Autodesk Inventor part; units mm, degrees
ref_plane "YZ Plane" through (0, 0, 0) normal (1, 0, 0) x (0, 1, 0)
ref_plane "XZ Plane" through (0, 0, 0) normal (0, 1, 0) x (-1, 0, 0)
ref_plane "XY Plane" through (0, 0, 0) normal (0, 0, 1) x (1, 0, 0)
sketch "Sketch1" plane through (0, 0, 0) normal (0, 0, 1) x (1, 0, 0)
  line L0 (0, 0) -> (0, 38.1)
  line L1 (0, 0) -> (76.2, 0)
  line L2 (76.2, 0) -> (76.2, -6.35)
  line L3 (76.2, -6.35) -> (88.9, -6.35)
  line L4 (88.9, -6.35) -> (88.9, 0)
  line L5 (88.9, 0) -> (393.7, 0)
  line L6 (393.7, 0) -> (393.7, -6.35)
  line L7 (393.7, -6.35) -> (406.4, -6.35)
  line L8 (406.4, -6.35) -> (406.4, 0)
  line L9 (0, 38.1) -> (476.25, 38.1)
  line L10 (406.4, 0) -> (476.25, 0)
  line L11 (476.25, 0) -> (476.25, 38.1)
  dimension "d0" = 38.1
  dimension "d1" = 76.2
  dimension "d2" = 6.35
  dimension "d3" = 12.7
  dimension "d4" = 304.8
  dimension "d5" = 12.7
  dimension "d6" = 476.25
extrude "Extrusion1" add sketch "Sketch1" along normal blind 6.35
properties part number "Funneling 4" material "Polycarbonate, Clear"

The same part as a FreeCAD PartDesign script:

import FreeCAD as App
import Part
import Sketcher
Q = App.Units.Quantity

doc = App.newDocument("Part")
params = doc.addObject("Spreadsheet::Sheet", "Params")
for row, (alias, value) in enumerate([
    ("sketch1_width", "3 in"),
    ("sketch1_width2", "12 in"),
    ("sketch1_width3", "0.5 in"),
    ("sketch1_height", "1.5 in"),
    ("sketch1_width4", "18.75 in"),
    ("pad1_length", "0.25 in"),
], start=1):
    params.set(f"A{row}", alias)
    params.set(f"B{row}", "=" + value)
    params.setAlias(f"B{row}", alias)

body = doc.addObject("PartDesign::Body", "Body")

# Sketch on XY plane
sketch1 = doc.addObject("Sketcher::SketchObject", "Sketch")
body.addObject(sketch1)
sketch1.AttachmentSupport = (doc.XY_Plane, [""])
sketch1.MapMode = "FlatFace"
sketch1.addGeometry(Part.LineSegment(App.Vector(0, 38.1, 0), App.Vector(0, 0, 0)), False)
sketch1.addGeometry(Part.LineSegment(App.Vector(0, 0, 0), App.Vector(76.2, 0, 0)), False)
sketch1.addGeometry(Part.LineSegment(App.Vector(76.2, 0, 0), App.Vector(76.2, -6.35, 0)), False)
sketch1.addGeometry(Part.LineSegment(App.Vector(76.2, -6.35, 0), App.Vector(88.9, -6.35, 0)), False)
sketch1.addGeometry(Part.LineSegment(App.Vector(88.9, -6.35, 0), App.Vector(88.9, 0, 0)), False)
sketch1.addGeometry(Part.LineSegment(App.Vector(88.9, 0, 0), App.Vector(393.7, 0, 0)), False)
sketch1.addGeometry(Part.LineSegment(App.Vector(393.7, 0, 0), App.Vector(393.7, -6.35, 0)), False)
sketch1.addGeometry(Part.LineSegment(App.Vector(393.7, -6.35, 0), App.Vector(406.4, -6.35, 0)), False)
sketch1.addGeometry(Part.LineSegment(App.Vector(406.4, -6.35, 0), App.Vector(406.4, 0, 0)), False)
sketch1.addGeometry(Part.LineSegment(App.Vector(406.4, 0, 0), App.Vector(476.25, 0, 0)), False)
sketch1.addGeometry(Part.LineSegment(App.Vector(476.25, 0, 0), App.Vector(476.25, 38.1, 0)), False)
sketch1.addGeometry(Part.LineSegment(App.Vector(476.25, 38.1, 0), App.Vector(0, 38.1, 0)), False)
sketch1.addConstraint(Sketcher.Constraint("Coincident", 0, 2, 1, 1))
sketch1.addConstraint(Sketcher.Constraint("Coincident", 1, 2, 2, 1))
sketch1.addConstraint(Sketcher.Constraint("Coincident", 2, 2, 3, 1))
sketch1.addConstraint(Sketcher.Constraint("Coincident", 3, 2, 4, 1))
sketch1.addConstraint(Sketcher.Constraint("Coincident", 4, 2, 5, 1))
sketch1.addConstraint(Sketcher.Constraint("Coincident", 5, 2, 6, 1))
sketch1.addConstraint(Sketcher.Constraint("Coincident", 6, 2, 7, 1))
sketch1.addConstraint(Sketcher.Constraint("Coincident", 7, 2, 8, 1))
sketch1.addConstraint(Sketcher.Constraint("Coincident", 8, 2, 9, 1))
sketch1.addConstraint(Sketcher.Constraint("Coincident", 9, 2, 10, 1))
sketch1.addConstraint(Sketcher.Constraint("Coincident", 10, 2, 11, 1))
sketch1.addConstraint(Sketcher.Constraint("Coincident", 11, 2, 0, 1))
sketch1.addConstraint(Sketcher.Constraint("Vertical", 0))
sketch1.addConstraint(Sketcher.Constraint("Horizontal", 1))
sketch1.addConstraint(Sketcher.Constraint("Vertical", 2))
sketch1.addConstraint(Sketcher.Constraint("Horizontal", 3))
sketch1.addConstraint(Sketcher.Constraint("Vertical", 4))
sketch1.addConstraint(Sketcher.Constraint("Horizontal", 5))
sketch1.addConstraint(Sketcher.Constraint("Vertical", 6))
sketch1.addConstraint(Sketcher.Constraint("Horizontal", 7))
sketch1.addConstraint(Sketcher.Constraint("Vertical", 8))
sketch1.addConstraint(Sketcher.Constraint("Horizontal", 9))
sketch1.addConstraint(Sketcher.Constraint("Vertical", 10))
sketch1.addConstraint(Sketcher.Constraint("Horizontal", 11))
sketch1.addConstraint(Sketcher.Constraint("Coincident", 0, 2, -1, 1))
sketch1.addConstraint(Sketcher.Constraint("PointOnObject", 4, 2, -1))
sketch1.addConstraint(Sketcher.Constraint("PointOnObject", 8, 2, -1))
sketch1.addConstraint(Sketcher.Constraint("Horizontal", 3, 2, 6, 2))
sketch1.addConstraint(Sketcher.Constraint("Equal", 3, 7))
sketch1.addConstraint(Sketcher.Constraint("DistanceX", 1, 1, 1, 2, Q("3 in")))
sketch1.addConstraint(Sketcher.Constraint("DistanceX", 5, 1, 5, 2, Q("12 in")))
sketch1.addConstraint(Sketcher.Constraint("DistanceX", 3, 1, 3, 2, Q("0.5 in")))
sketch1.addConstraint(Sketcher.Constraint("DistanceY", 0, 2, 0, 1, Q("1.5 in")))
sketch1.addConstraint(Sketcher.Constraint("DistanceX", 11, 2, 11, 1, Q("18.75 in")))
sketch1.addConstraint(Sketcher.Constraint("DistanceY", 2, 2, 2, 1, Q("0.25 in")))
sketch1.setExpression("Constraints[29]", "Params.sketch1_width")
sketch1.setExpression("Constraints[30]", "Params.sketch1_width2")
sketch1.setExpression("Constraints[31]", "Params.sketch1_width3")
sketch1.setExpression("Constraints[32]", "Params.sketch1_height")
sketch1.setExpression("Constraints[33]", "Params.sketch1_width4")
pad1 = doc.addObject("PartDesign::Pad", "Pad")
body.addObject(pad1)
pad1.Profile = sketch1
pad1.setExpression("Length", "Params.pad1_length")

doc.recompute()
